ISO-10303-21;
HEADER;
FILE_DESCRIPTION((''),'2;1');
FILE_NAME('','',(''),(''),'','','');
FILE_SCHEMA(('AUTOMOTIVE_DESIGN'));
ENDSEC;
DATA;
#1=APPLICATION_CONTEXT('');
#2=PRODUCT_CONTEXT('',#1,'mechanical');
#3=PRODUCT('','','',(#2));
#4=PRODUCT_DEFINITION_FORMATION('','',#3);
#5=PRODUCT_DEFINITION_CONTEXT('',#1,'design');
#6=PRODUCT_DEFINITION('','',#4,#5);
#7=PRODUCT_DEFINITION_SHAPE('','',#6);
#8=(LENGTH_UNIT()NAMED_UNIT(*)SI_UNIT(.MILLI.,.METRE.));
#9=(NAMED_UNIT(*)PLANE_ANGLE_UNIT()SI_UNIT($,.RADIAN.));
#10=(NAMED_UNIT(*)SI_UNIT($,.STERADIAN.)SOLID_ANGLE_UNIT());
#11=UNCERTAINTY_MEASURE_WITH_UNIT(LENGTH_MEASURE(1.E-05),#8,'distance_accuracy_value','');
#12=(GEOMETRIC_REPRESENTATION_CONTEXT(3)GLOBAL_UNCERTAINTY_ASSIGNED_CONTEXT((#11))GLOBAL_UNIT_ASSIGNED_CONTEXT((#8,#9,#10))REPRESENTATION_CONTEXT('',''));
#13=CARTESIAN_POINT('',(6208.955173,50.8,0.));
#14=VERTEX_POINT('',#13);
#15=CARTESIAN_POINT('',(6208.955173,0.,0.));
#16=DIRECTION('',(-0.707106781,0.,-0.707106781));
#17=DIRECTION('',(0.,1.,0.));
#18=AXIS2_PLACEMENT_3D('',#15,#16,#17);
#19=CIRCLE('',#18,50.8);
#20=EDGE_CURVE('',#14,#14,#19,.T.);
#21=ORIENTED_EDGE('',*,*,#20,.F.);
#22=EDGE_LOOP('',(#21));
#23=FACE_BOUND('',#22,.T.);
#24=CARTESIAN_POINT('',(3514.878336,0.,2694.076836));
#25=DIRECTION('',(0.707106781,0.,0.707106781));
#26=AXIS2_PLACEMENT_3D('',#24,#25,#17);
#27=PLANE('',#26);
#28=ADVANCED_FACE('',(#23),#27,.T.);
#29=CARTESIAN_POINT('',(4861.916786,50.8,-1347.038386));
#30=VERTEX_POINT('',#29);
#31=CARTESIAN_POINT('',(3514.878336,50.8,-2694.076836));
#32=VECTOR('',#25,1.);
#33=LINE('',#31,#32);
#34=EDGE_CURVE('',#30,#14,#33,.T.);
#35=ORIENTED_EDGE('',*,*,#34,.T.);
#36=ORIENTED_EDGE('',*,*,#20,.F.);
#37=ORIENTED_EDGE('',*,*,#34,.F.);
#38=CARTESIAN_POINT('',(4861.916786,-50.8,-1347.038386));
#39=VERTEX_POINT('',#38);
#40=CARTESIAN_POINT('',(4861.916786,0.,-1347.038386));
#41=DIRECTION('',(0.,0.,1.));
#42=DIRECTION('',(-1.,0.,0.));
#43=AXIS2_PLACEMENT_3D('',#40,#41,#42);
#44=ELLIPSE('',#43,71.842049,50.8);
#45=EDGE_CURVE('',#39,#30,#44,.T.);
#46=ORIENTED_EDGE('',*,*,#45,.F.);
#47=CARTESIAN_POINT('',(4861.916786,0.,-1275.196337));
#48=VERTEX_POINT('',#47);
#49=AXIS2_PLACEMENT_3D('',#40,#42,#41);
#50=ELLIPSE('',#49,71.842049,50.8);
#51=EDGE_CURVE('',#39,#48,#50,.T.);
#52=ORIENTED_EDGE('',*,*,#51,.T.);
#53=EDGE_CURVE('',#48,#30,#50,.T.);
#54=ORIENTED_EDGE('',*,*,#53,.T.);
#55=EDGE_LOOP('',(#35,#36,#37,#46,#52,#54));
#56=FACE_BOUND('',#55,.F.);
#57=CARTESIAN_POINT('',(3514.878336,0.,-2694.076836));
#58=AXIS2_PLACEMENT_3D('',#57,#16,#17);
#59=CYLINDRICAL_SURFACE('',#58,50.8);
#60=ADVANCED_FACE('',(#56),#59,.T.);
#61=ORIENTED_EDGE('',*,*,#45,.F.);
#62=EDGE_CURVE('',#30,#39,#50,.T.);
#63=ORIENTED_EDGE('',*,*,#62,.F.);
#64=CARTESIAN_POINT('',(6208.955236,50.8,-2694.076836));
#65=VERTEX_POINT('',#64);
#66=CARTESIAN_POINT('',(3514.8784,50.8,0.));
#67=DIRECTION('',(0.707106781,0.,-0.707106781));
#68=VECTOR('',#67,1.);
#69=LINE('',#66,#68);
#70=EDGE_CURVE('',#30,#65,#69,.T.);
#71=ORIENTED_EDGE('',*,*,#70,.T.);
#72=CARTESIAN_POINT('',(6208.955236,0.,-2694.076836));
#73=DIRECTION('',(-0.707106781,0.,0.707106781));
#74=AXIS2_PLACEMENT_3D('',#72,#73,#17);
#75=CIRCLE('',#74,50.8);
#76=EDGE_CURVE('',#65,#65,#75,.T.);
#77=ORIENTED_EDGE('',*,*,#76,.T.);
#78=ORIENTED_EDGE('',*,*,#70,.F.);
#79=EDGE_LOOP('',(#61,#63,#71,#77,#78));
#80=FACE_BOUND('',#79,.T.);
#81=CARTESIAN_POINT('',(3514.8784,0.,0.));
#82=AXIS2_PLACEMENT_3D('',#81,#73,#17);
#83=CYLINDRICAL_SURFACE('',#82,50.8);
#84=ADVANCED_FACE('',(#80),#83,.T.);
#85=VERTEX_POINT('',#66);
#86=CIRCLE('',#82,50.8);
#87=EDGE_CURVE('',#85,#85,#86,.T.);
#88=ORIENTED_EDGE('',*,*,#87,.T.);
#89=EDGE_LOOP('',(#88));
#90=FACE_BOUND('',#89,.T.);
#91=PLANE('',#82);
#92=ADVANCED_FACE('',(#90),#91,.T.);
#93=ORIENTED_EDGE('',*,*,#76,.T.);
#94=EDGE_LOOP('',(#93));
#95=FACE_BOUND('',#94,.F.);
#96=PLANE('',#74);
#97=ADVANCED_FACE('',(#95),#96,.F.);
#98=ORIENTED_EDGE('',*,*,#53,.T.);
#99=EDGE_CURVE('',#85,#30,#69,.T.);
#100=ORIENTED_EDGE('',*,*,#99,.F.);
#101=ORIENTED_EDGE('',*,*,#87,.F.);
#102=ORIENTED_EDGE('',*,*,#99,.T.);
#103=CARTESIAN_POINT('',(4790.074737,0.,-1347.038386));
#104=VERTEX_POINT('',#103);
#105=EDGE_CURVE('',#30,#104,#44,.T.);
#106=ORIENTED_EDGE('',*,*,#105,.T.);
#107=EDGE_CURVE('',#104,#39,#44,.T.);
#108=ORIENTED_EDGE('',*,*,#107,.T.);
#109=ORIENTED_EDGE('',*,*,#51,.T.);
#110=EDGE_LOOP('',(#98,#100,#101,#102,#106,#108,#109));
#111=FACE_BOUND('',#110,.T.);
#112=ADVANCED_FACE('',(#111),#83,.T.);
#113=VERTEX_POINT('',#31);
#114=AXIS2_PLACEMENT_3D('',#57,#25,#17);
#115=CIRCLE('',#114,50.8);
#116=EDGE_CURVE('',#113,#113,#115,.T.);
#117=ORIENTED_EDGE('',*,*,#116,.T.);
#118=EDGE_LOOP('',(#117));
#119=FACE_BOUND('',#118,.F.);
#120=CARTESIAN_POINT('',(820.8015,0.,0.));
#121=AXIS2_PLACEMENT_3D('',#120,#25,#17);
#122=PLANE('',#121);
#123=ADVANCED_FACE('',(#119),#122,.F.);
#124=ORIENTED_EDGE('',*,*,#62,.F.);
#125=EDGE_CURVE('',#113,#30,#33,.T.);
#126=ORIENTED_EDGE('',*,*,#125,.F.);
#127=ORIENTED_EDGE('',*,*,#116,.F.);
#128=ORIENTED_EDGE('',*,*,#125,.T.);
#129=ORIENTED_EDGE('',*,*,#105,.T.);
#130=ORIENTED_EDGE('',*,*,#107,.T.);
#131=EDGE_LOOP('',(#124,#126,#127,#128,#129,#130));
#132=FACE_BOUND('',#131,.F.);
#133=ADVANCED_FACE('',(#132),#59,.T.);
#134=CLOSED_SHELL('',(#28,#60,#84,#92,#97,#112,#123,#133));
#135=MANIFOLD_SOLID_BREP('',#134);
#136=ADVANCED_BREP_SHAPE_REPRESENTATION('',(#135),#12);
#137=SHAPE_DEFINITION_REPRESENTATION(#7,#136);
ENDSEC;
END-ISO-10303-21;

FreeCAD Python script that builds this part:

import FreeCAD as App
import Part
import Sketcher
Q = App.Units.Quantity

doc = App.newDocument("Part")
body = doc.addObject("PartDesign::Body", "Body")

# Sketch on an angled plane
sketch1 = doc.addObject("Sketcher::SketchObject", "Sketch")
body.addObject(sketch1)
sketch1.Placement = App.Placement(App.Vector(3514.8784, 0, 0), App.Rotation(App.Vector(0, 1, 0), App.Vector(-0.707106781, 0, -0.707106781), App.Vector(-0.707106781, 0, 0.707106781), "ZXY"))
sketch1.addGeometry(Part.Circle(App.Vector(0, 0, 0), App.Vector(0, 0, 1), 51), False)
sketch1.addConstraint(Sketcher.Constraint("Coincident", 0, 3, -1, 1))
sketch1.addConstraint(Sketcher.Constraint("Diameter", 0, Q("4 in")))
pad1 = doc.addObject("PartDesign::Pad", "Pad")
body.addObject(pad1)
pad1.Profile = sketch1
pad1.Length = Q("150 in")
pad1.Reversed = True

# Sketch on an angled plane
sketch2 = doc.addObject("Sketcher::SketchObject", "Sketch001")
body.addObject(sketch2)
sketch2.Placement = App.Placement(App.Vector(820.8015, 0, 0), App.Rotation(App.Vector(0, 1, 0), App.Vector(-0.707106781, 0, 0.707106781), App.Vector(0.707106781, 0, 0.707106781), "ZXY"))
sketch2.addGeometry(Part.Circle(App.Vector(0, -3810, 0), App.Vector(0, 0, 1), 51), False)
sketch2.addConstraint(Sketcher.Constraint("PointOnObject", 0, 3, -2))
sketch2.addConstraint(Sketcher.Constraint("Diameter", 0, Q("4 in")))
sketch2.addConstraint(Sketcher.Constraint("DistanceY", 0, 3, -1, 1, Q("150 in")))
pad2 = doc.addObject("PartDesign::Pad", "Pad001")
body.addObject(pad2)
pad2.Profile = sketch2
pad2.Length = Q("150 in")

doc.recompute()
